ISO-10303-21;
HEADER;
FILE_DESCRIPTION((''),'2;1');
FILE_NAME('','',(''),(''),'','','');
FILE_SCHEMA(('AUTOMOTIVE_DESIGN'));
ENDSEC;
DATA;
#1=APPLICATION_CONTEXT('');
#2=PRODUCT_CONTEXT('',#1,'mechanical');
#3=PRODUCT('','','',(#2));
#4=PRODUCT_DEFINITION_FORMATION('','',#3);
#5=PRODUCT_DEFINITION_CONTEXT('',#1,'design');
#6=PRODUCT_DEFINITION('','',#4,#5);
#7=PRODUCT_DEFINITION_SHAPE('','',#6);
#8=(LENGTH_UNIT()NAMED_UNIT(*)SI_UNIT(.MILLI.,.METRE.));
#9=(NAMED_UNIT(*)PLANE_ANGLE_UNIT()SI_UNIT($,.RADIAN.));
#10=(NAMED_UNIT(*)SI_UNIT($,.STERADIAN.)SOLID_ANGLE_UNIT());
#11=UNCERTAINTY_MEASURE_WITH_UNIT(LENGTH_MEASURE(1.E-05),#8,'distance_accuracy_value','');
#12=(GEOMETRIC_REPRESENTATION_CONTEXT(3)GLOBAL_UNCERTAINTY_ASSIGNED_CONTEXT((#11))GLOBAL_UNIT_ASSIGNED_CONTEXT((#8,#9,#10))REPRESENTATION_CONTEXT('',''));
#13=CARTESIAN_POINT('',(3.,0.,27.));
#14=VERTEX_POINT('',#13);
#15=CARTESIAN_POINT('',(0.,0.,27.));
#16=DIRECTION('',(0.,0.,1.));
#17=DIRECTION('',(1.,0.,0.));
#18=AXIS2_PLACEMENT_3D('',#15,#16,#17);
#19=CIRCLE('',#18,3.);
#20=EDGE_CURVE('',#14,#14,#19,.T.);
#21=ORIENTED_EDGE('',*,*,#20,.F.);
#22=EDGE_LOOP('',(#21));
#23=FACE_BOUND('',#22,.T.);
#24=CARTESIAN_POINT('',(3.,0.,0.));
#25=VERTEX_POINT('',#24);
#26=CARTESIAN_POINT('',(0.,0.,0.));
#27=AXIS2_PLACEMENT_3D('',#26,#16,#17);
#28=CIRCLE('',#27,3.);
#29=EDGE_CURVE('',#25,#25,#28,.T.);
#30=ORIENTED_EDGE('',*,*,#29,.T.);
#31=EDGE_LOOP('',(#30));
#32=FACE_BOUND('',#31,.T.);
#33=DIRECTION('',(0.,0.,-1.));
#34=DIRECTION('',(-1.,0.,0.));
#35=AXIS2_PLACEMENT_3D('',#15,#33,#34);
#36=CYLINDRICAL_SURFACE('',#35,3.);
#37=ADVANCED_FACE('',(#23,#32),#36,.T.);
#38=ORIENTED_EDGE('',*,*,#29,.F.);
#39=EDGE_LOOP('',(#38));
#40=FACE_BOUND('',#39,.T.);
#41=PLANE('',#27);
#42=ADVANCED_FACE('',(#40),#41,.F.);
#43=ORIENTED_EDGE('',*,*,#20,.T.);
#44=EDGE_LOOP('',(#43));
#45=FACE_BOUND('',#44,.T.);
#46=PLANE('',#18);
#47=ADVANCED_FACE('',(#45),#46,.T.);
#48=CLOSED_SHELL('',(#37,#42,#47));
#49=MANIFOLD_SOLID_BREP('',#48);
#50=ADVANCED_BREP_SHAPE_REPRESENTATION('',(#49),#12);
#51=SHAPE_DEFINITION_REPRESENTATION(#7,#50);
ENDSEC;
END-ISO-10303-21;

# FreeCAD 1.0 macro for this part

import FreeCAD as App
import Part
import Sketcher
from FreeCAD import Vector

doc = App.newDocument("Part")
body = doc.addObject("PartDesign::Body", "Body")

# Sketch on XY plane
sketch1 = body.newObject("Sketcher::SketchObject", "Sketch")
sketch1.AttachmentSupport = (doc.getObject("XY_Plane"), [""])
sketch1.MapMode = "FlatFace"
sketch1.addGeometry(Part.Circle(Vector(0, 0, 0), Vector(0, 0, 1), 3), False)
sketch1.addConstraint([
    Sketcher.Constraint("Coincident", 0, 3, -1, 1),
    Sketcher.Constraint("Diameter", 0, 6.0),
])
pad1 = body.newObject("PartDesign::Pad", "Pad")
pad1.Profile = sketch1
pad1.Length = 27

doc.recompute()
